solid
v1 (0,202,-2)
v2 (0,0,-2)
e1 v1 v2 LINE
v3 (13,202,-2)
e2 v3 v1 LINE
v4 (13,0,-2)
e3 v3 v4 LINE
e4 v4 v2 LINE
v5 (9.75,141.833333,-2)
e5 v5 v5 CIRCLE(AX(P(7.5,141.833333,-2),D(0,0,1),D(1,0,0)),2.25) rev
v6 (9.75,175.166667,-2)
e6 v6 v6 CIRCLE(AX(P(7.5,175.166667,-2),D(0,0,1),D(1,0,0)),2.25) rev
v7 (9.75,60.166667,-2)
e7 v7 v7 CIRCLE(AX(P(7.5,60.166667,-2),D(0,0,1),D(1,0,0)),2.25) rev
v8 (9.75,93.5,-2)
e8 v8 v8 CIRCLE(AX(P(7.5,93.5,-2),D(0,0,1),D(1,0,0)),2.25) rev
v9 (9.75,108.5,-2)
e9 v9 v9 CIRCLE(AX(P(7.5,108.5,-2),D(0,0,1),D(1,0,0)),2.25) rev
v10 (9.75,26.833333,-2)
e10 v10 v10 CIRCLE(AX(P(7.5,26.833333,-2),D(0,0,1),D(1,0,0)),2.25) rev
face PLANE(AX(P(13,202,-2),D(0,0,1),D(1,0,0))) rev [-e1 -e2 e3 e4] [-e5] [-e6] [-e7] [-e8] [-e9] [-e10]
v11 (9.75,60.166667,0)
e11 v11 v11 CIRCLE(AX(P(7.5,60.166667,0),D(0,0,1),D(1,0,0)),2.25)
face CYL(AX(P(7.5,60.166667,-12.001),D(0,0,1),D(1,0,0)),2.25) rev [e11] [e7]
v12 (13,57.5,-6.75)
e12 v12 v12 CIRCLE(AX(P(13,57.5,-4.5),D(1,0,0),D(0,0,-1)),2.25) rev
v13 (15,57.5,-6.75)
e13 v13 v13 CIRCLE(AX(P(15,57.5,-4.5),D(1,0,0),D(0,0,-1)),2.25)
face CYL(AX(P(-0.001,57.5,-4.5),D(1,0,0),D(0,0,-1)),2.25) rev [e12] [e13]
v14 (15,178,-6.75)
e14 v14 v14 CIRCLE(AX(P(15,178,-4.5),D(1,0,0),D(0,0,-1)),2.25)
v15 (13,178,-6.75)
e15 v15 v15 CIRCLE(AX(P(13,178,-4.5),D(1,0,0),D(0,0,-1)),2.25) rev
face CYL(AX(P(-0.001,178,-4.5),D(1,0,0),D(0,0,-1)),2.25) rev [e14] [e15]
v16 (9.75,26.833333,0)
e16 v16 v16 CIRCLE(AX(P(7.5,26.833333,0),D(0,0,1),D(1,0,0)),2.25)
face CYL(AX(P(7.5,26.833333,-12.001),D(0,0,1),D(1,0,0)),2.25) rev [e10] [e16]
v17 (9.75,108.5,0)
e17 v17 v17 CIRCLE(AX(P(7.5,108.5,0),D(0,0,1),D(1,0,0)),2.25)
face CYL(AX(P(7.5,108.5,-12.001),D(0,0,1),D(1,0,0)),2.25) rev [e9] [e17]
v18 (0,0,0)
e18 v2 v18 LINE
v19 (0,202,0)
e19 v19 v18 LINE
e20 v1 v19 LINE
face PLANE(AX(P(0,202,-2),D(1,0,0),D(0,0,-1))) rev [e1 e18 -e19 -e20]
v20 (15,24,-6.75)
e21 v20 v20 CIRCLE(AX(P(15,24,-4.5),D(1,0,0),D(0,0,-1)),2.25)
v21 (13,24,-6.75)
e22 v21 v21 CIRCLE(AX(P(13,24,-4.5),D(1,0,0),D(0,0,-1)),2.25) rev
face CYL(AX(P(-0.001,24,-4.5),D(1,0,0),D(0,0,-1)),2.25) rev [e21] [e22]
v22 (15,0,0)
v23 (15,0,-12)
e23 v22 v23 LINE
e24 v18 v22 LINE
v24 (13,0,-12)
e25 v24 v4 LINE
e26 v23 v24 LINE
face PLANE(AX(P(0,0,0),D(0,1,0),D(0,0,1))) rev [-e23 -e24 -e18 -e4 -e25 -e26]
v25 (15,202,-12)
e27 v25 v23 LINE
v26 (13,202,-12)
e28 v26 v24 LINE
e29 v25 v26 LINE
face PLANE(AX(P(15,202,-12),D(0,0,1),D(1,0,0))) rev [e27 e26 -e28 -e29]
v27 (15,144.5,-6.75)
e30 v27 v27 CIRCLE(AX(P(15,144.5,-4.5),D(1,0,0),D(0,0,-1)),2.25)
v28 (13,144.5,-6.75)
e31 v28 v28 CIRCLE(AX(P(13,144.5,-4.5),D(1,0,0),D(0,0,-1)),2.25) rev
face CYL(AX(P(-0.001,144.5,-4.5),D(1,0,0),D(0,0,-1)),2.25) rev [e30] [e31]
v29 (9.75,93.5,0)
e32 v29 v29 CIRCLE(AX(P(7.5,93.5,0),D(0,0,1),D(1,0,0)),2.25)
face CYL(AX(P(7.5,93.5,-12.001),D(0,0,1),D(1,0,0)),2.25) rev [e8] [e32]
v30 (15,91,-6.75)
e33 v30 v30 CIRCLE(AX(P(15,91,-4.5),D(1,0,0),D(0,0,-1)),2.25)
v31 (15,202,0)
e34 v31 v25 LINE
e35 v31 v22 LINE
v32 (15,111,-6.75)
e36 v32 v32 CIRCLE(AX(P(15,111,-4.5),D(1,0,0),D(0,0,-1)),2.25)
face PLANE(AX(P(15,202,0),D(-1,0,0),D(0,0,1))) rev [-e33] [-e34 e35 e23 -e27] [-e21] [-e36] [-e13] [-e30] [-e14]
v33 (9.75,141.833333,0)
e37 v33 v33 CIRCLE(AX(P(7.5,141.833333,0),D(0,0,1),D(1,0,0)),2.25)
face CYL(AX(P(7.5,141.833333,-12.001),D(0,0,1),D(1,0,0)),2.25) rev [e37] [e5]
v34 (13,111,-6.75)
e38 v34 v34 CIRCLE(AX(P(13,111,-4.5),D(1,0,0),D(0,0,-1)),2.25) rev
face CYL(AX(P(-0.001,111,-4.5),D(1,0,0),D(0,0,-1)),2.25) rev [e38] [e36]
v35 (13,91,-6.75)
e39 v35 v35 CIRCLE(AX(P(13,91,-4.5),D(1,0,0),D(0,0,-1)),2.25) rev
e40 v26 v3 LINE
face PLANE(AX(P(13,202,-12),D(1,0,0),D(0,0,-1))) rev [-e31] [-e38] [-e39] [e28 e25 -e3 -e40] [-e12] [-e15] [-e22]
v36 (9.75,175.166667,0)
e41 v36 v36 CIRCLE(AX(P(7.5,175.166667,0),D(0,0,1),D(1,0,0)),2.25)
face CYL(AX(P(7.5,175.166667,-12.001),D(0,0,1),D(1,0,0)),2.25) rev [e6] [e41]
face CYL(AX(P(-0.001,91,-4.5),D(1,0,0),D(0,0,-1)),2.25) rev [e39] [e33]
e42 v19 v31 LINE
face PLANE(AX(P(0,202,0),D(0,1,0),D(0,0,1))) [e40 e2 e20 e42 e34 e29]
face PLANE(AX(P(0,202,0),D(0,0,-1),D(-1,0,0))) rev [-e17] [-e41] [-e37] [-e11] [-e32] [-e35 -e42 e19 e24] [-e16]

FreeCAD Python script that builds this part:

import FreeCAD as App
import Part
import Sketcher
from FreeCAD import Vector

doc = App.newDocument("Part")
body = doc.addObject("PartDesign::Body", "Body")

# Sketch on XZ plane
sketch1 = body.newObject("Sketcher::SketchObject", "Sketch")
sketch1.AttachmentSupport = (doc.getObject("XZ_Plane"), [""])
sketch1.MapMode = "FlatFace"
sketch1.addGeometry([
    Part.LineSegment(Vector(0, 0, 0), Vector(15, 0, 0)),  # 0
    Part.LineSegment(Vector(15, 0, 0), Vector(15, -12, 0)),  # 1
    Part.LineSegment(Vector(15, -12, 0), Vector(13, -12, 0)),  # 2
    Part.LineSegment(Vector(13, -12, 0), Vector(13, -2, 0)),  # 3
    Part.LineSegment(Vector(13, -2, 0), Vector(0, -2, 0)),  # 4
    Part.LineSegment(Vector(0, -2, 0), Vector(0, 0, 0)),  # 5
], False)
sketch1.addConstraint([
    Sketcher.Constraint("Coincident", 0, 2, 1, 1),
    Sketcher.Constraint("Coincident", 1, 2, 2, 1),
    Sketcher.Constraint("Coincident", 2, 2, 3, 1),
    Sketcher.Constraint("Coincident", 3, 2, 4, 1),
    Sketcher.Constraint("Coincident", 4, 2, 5, 1),
    Sketcher.Constraint("Coincident", 5, 2, 0, 1),
    Sketcher.Constraint("Horizontal", 0),
    Sketcher.Constraint("Vertical", 1),
    Sketcher.Constraint("Horizontal", 2),
    Sketcher.Constraint("Vertical", 3),
    Sketcher.Constraint("Horizontal", 4),
    Sketcher.Constraint("Vertical", 5),
    Sketcher.Constraint("Coincident", 5, 2, -1, 1),
    Sketcher.Constraint("Equal", 2, 5),
    Sketcher.Constraint("DistanceX", 0, 1, 0, 2, 15.0),
    Sketcher.Constraint("DistanceX", 2, 2, 2, 1, 2.0),
    Sketcher.Constraint("DistanceY", 1, 2, 1, 1, 12.0),
])
pad1 = body.newObject("PartDesign::Pad", "Pad")
pad1.Profile = sketch1
pad1.Length = 202
pad1.Reversed = True

# Sketch on XY plane
sketch2 = body.newObject("Sketcher::SketchObject", "Sketch001")
sketch2.AttachmentSupport = (doc.getObject("XY_Plane"), [""])
sketch2.MapMode = "FlatFace"
sketch2.addGeometry(Part.Circle(Vector(7.5, 175.2, 0), Vector(0, 0, 1), 2.2), False)
sketch2.addConstraint([
    Sketcher.Constraint("Diameter", 0, 4.5),
    Sketcher.Constraint("DistanceX", -1, 1, 0, 3, 7.5),
    Sketcher.Constraint("DistanceY", -1, 1, 0, 3, 175.166667),
])
pocket1 = body.newObject("PartDesign::Pocket", "Pocket")
pocket1.Profile = sketch2
pocket1.Type = "UpToFirst"

# Sketch on XY plane
sketch3 = body.newObject("Sketcher::SketchObject", "Sketch002")
sketch3.AttachmentSupport = (doc.getObject("XY_Plane"), [""])
sketch3.MapMode = "FlatFace"
sketch3.addGeometry(Part.Circle(Vector(7.5, 141.8, 0), Vector(0, 0, 1), 2.2), False)
sketch3.addConstraint([
    Sketcher.Constraint("Diameter", 0, 4.5),
    Sketcher.Constraint("DistanceX", -1, 1, 0, 3, 7.5),
    Sketcher.Constraint("DistanceY", -1, 1, 0, 3, 141.833333),
])
pocket2 = body.newObject("PartDesign::Pocket", "Pocket001")
pocket2.Profile = sketch3
pocket2.Type = "UpToFirst"

# Sketch on XY plane
sketch4 = body.newObject("Sketcher::SketchObject", "Sketch003")
sketch4.AttachmentSupport = (doc.getObject("XY_Plane"), [""])
sketch4.MapMode = "FlatFace"
sketch4.addGeometry(Part.Circle(Vector(7.5, 108.5, 0), Vector(0, 0, 1), 2.2), False)
sketch4.addConstraint([
    Sketcher.Constraint("Diameter", 0, 4.5),
    Sketcher.Constraint("DistanceX", -1, 1, 0, 3, 7.5),
    Sketcher.Constraint("DistanceY", -1, 1, 0, 3, 108.5),
])
pocket3 = body.newObject("PartDesign::Pocket", "Pocket002")
pocket3.Profile = sketch4
pocket3.Type = "UpToFirst"

# Sketch on XY plane
sketch5 = body.newObject("Sketcher::SketchObject", "Sketch004")
sketch5.AttachmentSupport = (doc.getObject("XY_Plane"), [""])
sketch5.MapMode = "FlatFace"
sketch5.addGeometry(Part.Circle(Vector(7.5, 93.5, 0), Vector(0, 0, 1), 2.2), False)
sketch5.addConstraint([
    Sketcher.Constraint("Diameter", 0, 4.5),
    Sketcher.Constraint("DistanceX", -1, 1, 0, 3, 7.5),
    Sketcher.Constraint("DistanceY", -1, 1, 0, 3, 93.5),
])
pocket4 = body.newObject("PartDesign::Pocket", "Pocket003")
pocket4.Profile = sketch5
pocket4.Type = "UpToFirst"

# Sketch on XY plane
sketch6 = body.newObject("Sketcher::SketchObject", "Sketch005")
sketch6.AttachmentSupport = (doc.getObject("XY_Plane"), [""])
sketch6.MapMode = "FlatFace"
sketch6.addGeometry(Part.Circle(Vector(7.5, 60.2, 0), Vector(0, 0, 1), 2.2), False)
sketch6.addConstraint([
    Sketcher.Constraint("Diameter", 0, 4.5),
    Sketcher.Constraint("DistanceX", -1, 1, 0, 3, 7.5),
    Sketcher.Constraint("DistanceY", -1, 1, 0, 3, 60.166667),
])
pocket5 = body.newObject("PartDesign::Pocket", "Pocket004")
pocket5.Profile = sketch6
pocket5.Type = "UpToFirst"

# Sketch on XY plane
sketch7 = body.newObject("Sketcher::SketchObject", "Sketch006")
sketch7.AttachmentSupport = (doc.getObject("XY_Plane"), [""])
sketch7.MapMode = "FlatFace"
sketch7.addGeometry(Part.Circle(Vector(7.5, 26.8, 0), Vector(0, 0, 1), 2.2), False)
sketch7.addConstraint([
    Sketcher.Constraint("Diameter", 0, 4.5),
    Sketcher.Constraint("DistanceX", -1, 1, 0, 3, 7.5),
    Sketcher.Constraint("DistanceY", -1, 1, 0, 3, 26.833333),
])
pocket6 = body.newObject("PartDesign::Pocket", "Pocket005")
pocket6.Profile = sketch7
pocket6.Type = "UpToFirst"

# Sketch on YZ plane
sketch8 = body.newObject("Sketcher::SketchObject", "Sketch007")
sketch8.AttachmentSupport = (doc.getObject("YZ_Plane"), [""])
sketch8.MapMode = "FlatFace"
sketch8.AttachmentOffset = App.Placement(Vector(0, 0, 15), App.Rotation())
sketch8.addGeometry(Part.Circle(Vector(24, -4.5, 0), Vector(0, 0, 1), 2.2), False)
sketch8.addConstraint([
    Sketcher.Constraint("Diameter", 0, 4.5),
    Sketcher.Constraint("DistanceX", -1, 1, 0, 3, 24.0),
    Sketcher.Constraint("DistanceY", 0, 3, -1, 1, 4.5),
])
pocket7 = body.newObject("PartDesign::Pocket", "Pocket006")
pocket7.Profile = sketch8
pocket7.Type = "UpToFirst"

# Sketch on YZ plane
sketch9 = body.newObject("Sketcher::SketchObject", "Sketch008")
sketch9.AttachmentSupport = (doc.getObject("YZ_Plane"), [""])
sketch9.MapMode = "FlatFace"
sketch9.AttachmentOffset = App.Placement(Vector(0, 0, 15), App.Rotation())
sketch9.addGeometry(Part.Circle(Vector(57.5, -4.5, 0), Vector(0, 0, 1), 2.2), False)
sketch9.addConstraint([
    Sketcher.Constraint("Diameter", 0, 4.5),
    Sketcher.Constraint("DistanceX", -1, 1, 0, 3, 57.5),
    Sketcher.Constraint("DistanceY", 0, 3, -1, 1, 4.5),
])
pocket8 = body.newObject("PartDesign::Pocket", "Pocket007")
pocket8.Profile = sketch9
pocket8.Type = "UpToFirst"

# Sketch on YZ plane
sketch10 = body.newObject("Sketcher::SketchObject", "Sketch009")
sketch10.AttachmentSupport = (doc.getObject("YZ_Plane"), [""])
sketch10.MapMode = "FlatFace"
sketch10.AttachmentOffset = App.Placement(Vector(0, 0, 15), App.Rotation())
sketch10.addGeometry(Part.Circle(Vector(91, -4.5, 0), Vector(0, 0, 1), 2.2), False)
sketch10.addConstraint([
    Sketcher.Constraint("Diameter", 0, 4.5),
    Sketcher.Constraint("DistanceX", -1, 1, 0, 3, 91.0),
    Sketcher.Constraint("DistanceY", 0, 3, -1, 1, 4.5),
])
pocket9 = body.newObject("PartDesign::Pocket", "Pocket008")
pocket9.Profile = sketch10
pocket9.Type = "UpToFirst"

# Sketch on YZ plane
sketch11 = body.newObject("Sketcher::SketchObject", "Sketch010")
sketch11.AttachmentSupport = (doc.getObject("YZ_Plane"), [""])
sketch11.MapMode = "FlatFace"
sketch11.AttachmentOffset = App.Placement(Vector(0, 0, 15), App.Rotation())
sketch11.addGeometry(Part.Circle(Vector(111, -4.5, 0), Vector(0, 0, 1), 2.2), False)
sketch11.addConstraint([
    Sketcher.Constraint("Diameter", 0, 4.5),
    Sketcher.Constraint("DistanceX", -1, 1, 0, 3, 111.0),
    Sketcher.Constraint("DistanceY", 0, 3, -1, 1, 4.5),
])
pocket10 = body.newObject("PartDesign::Pocket", "Pocket009")
pocket10.Profile = sketch11
pocket10.Type = "UpToFirst"

# Sketch on YZ plane
sketch12 = body.newObject("Sketcher::SketchObject", "Sketch011")
sketch12.AttachmentSupport = (doc.getObject("YZ_Plane"), [""])
sketch12.MapMode = "FlatFace"
sketch12.AttachmentOffset = App.Placement(Vector(0, 0, 15), App.Rotation())
sketch12.addGeometry(Part.Circle(Vector(144.5, -4.5, 0), Vector(0, 0, 1), 2.2), False)
sketch12.addConstraint([
    Sketcher.Constraint("Diameter", 0, 4.5),
    Sketcher.Constraint("DistanceX", -1, 1, 0, 3, 144.5),
    Sketcher.Constraint("DistanceY", 0, 3, -1, 1, 4.5),
])
pocket11 = body.newObject("PartDesign::Pocket", "Pocket010")
pocket11.Profile = sketch12
pocket11.Type = "UpToFirst"

# Sketch on YZ plane
sketch13 = body.newObject("Sketcher::SketchObject", "Sketch012")
sketch13.AttachmentSupport = (doc.getObject("YZ_Plane"), [""])
sketch13.MapMode = "FlatFace"
sketch13.AttachmentOffset = App.Placement(Vector(0, 0, 15), App.Rotation())
sketch13.addGeometry(Part.Circle(Vector(178, -4.5, 0), Vector(0, 0, 1), 2.2), False)
sketch13.addConstraint([
    Sketcher.Constraint("Diameter", 0, 4.5),
    Sketcher.Constraint("DistanceX", -1, 1, 0, 3, 178.0),
    Sketcher.Constraint("DistanceY", 0, 3, -1, 1, 4.5),
])
pocket12 = body.newObject("PartDesign::Pocket", "Pocket011")
pocket12.Profile = sketch13
pocket12.Type = "UpToFirst"

doc.recompute()
